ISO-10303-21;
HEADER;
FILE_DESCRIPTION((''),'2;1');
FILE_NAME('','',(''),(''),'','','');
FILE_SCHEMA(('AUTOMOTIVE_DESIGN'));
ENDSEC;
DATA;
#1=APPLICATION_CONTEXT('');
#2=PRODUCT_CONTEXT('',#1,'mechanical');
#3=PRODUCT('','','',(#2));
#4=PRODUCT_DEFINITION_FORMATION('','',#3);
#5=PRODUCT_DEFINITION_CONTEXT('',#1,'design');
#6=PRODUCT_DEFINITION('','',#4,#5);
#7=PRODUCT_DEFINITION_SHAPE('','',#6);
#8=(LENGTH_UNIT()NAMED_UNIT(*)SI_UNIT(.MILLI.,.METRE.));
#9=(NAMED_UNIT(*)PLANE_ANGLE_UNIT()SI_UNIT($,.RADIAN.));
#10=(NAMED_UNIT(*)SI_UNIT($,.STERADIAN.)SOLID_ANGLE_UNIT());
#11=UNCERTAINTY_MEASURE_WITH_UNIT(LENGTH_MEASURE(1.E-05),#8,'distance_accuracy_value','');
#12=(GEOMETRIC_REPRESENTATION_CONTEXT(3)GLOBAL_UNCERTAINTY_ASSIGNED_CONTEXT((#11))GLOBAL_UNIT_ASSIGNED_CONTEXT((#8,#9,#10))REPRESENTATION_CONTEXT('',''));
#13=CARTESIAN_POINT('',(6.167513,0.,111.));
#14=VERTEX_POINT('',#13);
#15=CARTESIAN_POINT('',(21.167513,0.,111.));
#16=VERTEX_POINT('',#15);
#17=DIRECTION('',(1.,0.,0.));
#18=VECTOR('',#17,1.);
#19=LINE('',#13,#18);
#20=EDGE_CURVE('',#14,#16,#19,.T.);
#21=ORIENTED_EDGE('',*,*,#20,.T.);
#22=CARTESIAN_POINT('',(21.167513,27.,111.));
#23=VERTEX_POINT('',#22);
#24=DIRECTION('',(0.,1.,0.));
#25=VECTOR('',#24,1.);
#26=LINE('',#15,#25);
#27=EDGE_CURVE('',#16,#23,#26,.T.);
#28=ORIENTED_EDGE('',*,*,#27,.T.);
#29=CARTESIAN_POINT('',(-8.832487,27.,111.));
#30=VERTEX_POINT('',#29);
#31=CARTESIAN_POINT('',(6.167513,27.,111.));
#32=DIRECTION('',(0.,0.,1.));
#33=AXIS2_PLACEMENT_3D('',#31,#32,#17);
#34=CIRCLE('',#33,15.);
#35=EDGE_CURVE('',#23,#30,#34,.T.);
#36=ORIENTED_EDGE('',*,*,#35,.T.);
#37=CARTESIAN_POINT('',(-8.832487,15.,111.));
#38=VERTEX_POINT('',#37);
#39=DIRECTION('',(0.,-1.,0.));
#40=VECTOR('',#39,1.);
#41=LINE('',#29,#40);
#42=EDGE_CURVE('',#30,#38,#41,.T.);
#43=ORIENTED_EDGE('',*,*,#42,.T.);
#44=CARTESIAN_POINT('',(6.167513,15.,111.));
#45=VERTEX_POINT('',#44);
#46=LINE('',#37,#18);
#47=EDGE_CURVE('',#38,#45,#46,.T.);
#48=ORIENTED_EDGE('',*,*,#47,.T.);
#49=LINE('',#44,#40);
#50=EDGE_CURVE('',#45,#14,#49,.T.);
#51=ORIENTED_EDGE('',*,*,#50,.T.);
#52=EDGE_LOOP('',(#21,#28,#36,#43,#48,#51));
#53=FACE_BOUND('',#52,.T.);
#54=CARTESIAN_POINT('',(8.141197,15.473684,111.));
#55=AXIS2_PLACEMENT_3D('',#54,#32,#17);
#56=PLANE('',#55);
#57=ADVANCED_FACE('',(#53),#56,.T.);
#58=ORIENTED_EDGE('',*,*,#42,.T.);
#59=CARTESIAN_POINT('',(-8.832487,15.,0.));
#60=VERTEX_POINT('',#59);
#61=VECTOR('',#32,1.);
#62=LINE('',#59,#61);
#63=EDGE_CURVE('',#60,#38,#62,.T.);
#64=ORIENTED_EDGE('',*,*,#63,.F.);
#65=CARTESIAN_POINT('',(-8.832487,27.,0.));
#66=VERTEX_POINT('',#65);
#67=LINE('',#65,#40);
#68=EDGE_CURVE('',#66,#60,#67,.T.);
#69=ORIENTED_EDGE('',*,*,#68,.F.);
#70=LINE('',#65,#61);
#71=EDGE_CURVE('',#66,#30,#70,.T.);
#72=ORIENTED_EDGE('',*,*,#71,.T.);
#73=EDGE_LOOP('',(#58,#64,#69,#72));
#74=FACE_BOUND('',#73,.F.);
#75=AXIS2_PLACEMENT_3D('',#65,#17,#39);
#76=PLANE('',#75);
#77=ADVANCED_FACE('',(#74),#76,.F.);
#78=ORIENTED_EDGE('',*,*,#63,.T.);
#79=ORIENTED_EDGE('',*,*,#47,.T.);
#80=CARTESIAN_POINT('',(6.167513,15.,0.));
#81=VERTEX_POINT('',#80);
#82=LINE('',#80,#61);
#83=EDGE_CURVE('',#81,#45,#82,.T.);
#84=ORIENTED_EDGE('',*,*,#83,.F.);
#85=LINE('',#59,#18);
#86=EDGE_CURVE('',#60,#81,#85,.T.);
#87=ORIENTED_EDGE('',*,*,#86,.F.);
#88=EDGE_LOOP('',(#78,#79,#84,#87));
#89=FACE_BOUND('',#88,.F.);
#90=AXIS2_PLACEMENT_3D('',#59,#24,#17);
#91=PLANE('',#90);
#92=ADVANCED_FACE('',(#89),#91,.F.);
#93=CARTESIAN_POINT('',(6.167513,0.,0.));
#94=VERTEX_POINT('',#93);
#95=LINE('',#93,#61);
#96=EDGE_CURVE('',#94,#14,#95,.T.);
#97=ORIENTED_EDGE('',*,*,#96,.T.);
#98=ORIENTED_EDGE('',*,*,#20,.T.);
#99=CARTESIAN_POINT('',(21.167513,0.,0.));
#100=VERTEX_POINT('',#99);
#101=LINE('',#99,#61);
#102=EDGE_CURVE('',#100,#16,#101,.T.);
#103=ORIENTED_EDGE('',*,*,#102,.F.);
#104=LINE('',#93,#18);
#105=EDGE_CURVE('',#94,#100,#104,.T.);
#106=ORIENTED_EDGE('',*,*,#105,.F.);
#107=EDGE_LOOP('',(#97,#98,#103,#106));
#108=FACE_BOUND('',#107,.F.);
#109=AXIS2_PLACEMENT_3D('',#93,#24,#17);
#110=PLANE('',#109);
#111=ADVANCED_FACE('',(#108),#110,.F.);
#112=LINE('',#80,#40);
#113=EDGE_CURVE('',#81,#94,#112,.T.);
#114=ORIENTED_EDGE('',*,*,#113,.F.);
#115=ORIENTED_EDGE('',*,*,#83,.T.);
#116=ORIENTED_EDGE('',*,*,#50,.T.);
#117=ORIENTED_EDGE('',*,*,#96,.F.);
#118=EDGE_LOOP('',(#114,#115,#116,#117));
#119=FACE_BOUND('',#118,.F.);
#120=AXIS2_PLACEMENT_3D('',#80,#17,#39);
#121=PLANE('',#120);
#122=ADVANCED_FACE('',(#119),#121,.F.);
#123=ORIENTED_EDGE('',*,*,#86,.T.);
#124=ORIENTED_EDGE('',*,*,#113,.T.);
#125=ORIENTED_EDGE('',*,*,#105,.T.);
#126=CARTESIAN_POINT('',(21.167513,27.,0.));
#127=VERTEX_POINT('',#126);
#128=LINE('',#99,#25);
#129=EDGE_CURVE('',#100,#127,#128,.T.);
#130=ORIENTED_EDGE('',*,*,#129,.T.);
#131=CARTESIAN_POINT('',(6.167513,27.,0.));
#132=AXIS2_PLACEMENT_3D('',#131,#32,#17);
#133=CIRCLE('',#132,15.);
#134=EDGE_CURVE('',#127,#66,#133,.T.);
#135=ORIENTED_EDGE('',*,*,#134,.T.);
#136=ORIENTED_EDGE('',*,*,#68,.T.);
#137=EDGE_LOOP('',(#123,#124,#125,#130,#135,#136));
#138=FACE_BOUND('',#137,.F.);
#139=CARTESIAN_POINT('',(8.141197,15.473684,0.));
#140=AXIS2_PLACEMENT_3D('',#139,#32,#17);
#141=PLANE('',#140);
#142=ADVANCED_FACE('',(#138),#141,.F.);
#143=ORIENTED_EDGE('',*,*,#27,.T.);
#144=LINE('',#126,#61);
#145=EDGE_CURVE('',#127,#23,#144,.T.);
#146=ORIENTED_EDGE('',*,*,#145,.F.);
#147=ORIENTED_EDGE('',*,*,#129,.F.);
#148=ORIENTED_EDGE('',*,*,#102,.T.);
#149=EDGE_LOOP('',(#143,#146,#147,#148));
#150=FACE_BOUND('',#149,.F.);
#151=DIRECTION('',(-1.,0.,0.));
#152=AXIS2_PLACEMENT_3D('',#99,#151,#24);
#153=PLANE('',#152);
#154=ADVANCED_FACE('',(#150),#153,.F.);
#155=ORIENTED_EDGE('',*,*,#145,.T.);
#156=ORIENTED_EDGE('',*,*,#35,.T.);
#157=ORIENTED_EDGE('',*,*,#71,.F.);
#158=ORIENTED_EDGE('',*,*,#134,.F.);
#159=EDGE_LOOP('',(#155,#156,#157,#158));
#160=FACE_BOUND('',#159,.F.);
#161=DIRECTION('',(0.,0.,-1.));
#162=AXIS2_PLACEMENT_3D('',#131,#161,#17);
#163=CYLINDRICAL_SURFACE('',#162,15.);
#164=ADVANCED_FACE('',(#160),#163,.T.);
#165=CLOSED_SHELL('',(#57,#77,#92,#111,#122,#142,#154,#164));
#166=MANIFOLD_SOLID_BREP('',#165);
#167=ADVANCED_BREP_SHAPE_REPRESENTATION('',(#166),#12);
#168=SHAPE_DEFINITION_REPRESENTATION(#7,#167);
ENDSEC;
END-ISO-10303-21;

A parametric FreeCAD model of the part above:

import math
import FreeCAD as App
import Part
import Sketcher
from FreeCAD import Vector

doc = App.newDocument("Part")
body = doc.addObject("PartDesign::Body", "Body")

# Sketch on XY plane
sketch1 = body.newObject("Sketcher::SketchObject", "Sketch")
sketch1.AttachmentSupport = (doc.getObject("XY_Plane"), [""])
sketch1.MapMode = "FlatFace"
sketch1.addGeometry(Part.LineSegment(Vector(6.167513, 15, 0), Vector(6.167513, 0, 0)), False)
sketch1.addGeometry(Part.LineSegment(Vector(6.167513, 0, 0), Vector(21.167513, 0, 0)), False)
sketch1.addGeometry(Part.LineSegment(Vector(21.167513, 0, 0), Vector(21.167513, 27, 0)), False)
sketch1.addGeometry(Part.ArcOfCircle(Part.Circle(Vector(6.167513, 27, 0), Vector(0, 0, 1), 15), math.radians(0), math.radians(180)), False)
sketch1.addGeometry(Part.LineSegment(Vector(-8.832487, 27, 0), Vector(-8.832487, 15, 0)), False)
sketch1.addGeometry(Part.LineSegment(Vector(-8.832487, 15, 0), Vector(6.167513, 15, 0)), False)
sketch1.addConstraint(Sketcher.Constraint("Coincident", 0, 2, 1, 1))
sketch1.addConstraint(Sketcher.Constraint("Coincident", 1, 2, 2, 1))
sketch1.addConstraint(Sketcher.Constraint("Tangent", 2, 2, 3, 1))
sketch1.addConstraint(Sketcher.Constraint("Tangent", 3, 2, 4, 1))
sketch1.addConstraint(Sketcher.Constraint("Coincident", 4, 2, 5, 1))
sketch1.addConstraint(Sketcher.Constraint("Coincident", 5, 2, 0, 1))
sketch1.addConstraint(Sketcher.Constraint("Vertical", 0))
sketch1.addConstraint(Sketcher.Constraint("Horizontal", 1))
sketch1.addConstraint(Sketcher.Constraint("Vertical", 2))
sketch1.addConstraint(Sketcher.Constraint("Vertical", 4))
sketch1.addConstraint(Sketcher.Constraint("Horizontal", 5))
sketch1.addConstraint(Sketcher.Constraint("PointOnObject", 0, 2, -1))
sketch1.addConstraint(Sketcher.Constraint("Vertical", 3, 3, 0, 2))
sketch1.addConstraint(Sketcher.Constraint("Equal", 5, 0))
sketch1.addConstraint(Sketcher.Constraint("Radius", 3, 15.0))
sketch1.addConstraint(Sketcher.Constraint("DistanceY", 2, 1, 2, 2, 27.0))
sketch1.addConstraint(Sketcher.Constraint("DistanceX", -1, 1, 3, 3, 6.167513))
pad1 = body.newObject("PartDesign::Pad", "Pad")
pad1.Profile = sketch1
pad1.Length = 111

doc.recompute()
